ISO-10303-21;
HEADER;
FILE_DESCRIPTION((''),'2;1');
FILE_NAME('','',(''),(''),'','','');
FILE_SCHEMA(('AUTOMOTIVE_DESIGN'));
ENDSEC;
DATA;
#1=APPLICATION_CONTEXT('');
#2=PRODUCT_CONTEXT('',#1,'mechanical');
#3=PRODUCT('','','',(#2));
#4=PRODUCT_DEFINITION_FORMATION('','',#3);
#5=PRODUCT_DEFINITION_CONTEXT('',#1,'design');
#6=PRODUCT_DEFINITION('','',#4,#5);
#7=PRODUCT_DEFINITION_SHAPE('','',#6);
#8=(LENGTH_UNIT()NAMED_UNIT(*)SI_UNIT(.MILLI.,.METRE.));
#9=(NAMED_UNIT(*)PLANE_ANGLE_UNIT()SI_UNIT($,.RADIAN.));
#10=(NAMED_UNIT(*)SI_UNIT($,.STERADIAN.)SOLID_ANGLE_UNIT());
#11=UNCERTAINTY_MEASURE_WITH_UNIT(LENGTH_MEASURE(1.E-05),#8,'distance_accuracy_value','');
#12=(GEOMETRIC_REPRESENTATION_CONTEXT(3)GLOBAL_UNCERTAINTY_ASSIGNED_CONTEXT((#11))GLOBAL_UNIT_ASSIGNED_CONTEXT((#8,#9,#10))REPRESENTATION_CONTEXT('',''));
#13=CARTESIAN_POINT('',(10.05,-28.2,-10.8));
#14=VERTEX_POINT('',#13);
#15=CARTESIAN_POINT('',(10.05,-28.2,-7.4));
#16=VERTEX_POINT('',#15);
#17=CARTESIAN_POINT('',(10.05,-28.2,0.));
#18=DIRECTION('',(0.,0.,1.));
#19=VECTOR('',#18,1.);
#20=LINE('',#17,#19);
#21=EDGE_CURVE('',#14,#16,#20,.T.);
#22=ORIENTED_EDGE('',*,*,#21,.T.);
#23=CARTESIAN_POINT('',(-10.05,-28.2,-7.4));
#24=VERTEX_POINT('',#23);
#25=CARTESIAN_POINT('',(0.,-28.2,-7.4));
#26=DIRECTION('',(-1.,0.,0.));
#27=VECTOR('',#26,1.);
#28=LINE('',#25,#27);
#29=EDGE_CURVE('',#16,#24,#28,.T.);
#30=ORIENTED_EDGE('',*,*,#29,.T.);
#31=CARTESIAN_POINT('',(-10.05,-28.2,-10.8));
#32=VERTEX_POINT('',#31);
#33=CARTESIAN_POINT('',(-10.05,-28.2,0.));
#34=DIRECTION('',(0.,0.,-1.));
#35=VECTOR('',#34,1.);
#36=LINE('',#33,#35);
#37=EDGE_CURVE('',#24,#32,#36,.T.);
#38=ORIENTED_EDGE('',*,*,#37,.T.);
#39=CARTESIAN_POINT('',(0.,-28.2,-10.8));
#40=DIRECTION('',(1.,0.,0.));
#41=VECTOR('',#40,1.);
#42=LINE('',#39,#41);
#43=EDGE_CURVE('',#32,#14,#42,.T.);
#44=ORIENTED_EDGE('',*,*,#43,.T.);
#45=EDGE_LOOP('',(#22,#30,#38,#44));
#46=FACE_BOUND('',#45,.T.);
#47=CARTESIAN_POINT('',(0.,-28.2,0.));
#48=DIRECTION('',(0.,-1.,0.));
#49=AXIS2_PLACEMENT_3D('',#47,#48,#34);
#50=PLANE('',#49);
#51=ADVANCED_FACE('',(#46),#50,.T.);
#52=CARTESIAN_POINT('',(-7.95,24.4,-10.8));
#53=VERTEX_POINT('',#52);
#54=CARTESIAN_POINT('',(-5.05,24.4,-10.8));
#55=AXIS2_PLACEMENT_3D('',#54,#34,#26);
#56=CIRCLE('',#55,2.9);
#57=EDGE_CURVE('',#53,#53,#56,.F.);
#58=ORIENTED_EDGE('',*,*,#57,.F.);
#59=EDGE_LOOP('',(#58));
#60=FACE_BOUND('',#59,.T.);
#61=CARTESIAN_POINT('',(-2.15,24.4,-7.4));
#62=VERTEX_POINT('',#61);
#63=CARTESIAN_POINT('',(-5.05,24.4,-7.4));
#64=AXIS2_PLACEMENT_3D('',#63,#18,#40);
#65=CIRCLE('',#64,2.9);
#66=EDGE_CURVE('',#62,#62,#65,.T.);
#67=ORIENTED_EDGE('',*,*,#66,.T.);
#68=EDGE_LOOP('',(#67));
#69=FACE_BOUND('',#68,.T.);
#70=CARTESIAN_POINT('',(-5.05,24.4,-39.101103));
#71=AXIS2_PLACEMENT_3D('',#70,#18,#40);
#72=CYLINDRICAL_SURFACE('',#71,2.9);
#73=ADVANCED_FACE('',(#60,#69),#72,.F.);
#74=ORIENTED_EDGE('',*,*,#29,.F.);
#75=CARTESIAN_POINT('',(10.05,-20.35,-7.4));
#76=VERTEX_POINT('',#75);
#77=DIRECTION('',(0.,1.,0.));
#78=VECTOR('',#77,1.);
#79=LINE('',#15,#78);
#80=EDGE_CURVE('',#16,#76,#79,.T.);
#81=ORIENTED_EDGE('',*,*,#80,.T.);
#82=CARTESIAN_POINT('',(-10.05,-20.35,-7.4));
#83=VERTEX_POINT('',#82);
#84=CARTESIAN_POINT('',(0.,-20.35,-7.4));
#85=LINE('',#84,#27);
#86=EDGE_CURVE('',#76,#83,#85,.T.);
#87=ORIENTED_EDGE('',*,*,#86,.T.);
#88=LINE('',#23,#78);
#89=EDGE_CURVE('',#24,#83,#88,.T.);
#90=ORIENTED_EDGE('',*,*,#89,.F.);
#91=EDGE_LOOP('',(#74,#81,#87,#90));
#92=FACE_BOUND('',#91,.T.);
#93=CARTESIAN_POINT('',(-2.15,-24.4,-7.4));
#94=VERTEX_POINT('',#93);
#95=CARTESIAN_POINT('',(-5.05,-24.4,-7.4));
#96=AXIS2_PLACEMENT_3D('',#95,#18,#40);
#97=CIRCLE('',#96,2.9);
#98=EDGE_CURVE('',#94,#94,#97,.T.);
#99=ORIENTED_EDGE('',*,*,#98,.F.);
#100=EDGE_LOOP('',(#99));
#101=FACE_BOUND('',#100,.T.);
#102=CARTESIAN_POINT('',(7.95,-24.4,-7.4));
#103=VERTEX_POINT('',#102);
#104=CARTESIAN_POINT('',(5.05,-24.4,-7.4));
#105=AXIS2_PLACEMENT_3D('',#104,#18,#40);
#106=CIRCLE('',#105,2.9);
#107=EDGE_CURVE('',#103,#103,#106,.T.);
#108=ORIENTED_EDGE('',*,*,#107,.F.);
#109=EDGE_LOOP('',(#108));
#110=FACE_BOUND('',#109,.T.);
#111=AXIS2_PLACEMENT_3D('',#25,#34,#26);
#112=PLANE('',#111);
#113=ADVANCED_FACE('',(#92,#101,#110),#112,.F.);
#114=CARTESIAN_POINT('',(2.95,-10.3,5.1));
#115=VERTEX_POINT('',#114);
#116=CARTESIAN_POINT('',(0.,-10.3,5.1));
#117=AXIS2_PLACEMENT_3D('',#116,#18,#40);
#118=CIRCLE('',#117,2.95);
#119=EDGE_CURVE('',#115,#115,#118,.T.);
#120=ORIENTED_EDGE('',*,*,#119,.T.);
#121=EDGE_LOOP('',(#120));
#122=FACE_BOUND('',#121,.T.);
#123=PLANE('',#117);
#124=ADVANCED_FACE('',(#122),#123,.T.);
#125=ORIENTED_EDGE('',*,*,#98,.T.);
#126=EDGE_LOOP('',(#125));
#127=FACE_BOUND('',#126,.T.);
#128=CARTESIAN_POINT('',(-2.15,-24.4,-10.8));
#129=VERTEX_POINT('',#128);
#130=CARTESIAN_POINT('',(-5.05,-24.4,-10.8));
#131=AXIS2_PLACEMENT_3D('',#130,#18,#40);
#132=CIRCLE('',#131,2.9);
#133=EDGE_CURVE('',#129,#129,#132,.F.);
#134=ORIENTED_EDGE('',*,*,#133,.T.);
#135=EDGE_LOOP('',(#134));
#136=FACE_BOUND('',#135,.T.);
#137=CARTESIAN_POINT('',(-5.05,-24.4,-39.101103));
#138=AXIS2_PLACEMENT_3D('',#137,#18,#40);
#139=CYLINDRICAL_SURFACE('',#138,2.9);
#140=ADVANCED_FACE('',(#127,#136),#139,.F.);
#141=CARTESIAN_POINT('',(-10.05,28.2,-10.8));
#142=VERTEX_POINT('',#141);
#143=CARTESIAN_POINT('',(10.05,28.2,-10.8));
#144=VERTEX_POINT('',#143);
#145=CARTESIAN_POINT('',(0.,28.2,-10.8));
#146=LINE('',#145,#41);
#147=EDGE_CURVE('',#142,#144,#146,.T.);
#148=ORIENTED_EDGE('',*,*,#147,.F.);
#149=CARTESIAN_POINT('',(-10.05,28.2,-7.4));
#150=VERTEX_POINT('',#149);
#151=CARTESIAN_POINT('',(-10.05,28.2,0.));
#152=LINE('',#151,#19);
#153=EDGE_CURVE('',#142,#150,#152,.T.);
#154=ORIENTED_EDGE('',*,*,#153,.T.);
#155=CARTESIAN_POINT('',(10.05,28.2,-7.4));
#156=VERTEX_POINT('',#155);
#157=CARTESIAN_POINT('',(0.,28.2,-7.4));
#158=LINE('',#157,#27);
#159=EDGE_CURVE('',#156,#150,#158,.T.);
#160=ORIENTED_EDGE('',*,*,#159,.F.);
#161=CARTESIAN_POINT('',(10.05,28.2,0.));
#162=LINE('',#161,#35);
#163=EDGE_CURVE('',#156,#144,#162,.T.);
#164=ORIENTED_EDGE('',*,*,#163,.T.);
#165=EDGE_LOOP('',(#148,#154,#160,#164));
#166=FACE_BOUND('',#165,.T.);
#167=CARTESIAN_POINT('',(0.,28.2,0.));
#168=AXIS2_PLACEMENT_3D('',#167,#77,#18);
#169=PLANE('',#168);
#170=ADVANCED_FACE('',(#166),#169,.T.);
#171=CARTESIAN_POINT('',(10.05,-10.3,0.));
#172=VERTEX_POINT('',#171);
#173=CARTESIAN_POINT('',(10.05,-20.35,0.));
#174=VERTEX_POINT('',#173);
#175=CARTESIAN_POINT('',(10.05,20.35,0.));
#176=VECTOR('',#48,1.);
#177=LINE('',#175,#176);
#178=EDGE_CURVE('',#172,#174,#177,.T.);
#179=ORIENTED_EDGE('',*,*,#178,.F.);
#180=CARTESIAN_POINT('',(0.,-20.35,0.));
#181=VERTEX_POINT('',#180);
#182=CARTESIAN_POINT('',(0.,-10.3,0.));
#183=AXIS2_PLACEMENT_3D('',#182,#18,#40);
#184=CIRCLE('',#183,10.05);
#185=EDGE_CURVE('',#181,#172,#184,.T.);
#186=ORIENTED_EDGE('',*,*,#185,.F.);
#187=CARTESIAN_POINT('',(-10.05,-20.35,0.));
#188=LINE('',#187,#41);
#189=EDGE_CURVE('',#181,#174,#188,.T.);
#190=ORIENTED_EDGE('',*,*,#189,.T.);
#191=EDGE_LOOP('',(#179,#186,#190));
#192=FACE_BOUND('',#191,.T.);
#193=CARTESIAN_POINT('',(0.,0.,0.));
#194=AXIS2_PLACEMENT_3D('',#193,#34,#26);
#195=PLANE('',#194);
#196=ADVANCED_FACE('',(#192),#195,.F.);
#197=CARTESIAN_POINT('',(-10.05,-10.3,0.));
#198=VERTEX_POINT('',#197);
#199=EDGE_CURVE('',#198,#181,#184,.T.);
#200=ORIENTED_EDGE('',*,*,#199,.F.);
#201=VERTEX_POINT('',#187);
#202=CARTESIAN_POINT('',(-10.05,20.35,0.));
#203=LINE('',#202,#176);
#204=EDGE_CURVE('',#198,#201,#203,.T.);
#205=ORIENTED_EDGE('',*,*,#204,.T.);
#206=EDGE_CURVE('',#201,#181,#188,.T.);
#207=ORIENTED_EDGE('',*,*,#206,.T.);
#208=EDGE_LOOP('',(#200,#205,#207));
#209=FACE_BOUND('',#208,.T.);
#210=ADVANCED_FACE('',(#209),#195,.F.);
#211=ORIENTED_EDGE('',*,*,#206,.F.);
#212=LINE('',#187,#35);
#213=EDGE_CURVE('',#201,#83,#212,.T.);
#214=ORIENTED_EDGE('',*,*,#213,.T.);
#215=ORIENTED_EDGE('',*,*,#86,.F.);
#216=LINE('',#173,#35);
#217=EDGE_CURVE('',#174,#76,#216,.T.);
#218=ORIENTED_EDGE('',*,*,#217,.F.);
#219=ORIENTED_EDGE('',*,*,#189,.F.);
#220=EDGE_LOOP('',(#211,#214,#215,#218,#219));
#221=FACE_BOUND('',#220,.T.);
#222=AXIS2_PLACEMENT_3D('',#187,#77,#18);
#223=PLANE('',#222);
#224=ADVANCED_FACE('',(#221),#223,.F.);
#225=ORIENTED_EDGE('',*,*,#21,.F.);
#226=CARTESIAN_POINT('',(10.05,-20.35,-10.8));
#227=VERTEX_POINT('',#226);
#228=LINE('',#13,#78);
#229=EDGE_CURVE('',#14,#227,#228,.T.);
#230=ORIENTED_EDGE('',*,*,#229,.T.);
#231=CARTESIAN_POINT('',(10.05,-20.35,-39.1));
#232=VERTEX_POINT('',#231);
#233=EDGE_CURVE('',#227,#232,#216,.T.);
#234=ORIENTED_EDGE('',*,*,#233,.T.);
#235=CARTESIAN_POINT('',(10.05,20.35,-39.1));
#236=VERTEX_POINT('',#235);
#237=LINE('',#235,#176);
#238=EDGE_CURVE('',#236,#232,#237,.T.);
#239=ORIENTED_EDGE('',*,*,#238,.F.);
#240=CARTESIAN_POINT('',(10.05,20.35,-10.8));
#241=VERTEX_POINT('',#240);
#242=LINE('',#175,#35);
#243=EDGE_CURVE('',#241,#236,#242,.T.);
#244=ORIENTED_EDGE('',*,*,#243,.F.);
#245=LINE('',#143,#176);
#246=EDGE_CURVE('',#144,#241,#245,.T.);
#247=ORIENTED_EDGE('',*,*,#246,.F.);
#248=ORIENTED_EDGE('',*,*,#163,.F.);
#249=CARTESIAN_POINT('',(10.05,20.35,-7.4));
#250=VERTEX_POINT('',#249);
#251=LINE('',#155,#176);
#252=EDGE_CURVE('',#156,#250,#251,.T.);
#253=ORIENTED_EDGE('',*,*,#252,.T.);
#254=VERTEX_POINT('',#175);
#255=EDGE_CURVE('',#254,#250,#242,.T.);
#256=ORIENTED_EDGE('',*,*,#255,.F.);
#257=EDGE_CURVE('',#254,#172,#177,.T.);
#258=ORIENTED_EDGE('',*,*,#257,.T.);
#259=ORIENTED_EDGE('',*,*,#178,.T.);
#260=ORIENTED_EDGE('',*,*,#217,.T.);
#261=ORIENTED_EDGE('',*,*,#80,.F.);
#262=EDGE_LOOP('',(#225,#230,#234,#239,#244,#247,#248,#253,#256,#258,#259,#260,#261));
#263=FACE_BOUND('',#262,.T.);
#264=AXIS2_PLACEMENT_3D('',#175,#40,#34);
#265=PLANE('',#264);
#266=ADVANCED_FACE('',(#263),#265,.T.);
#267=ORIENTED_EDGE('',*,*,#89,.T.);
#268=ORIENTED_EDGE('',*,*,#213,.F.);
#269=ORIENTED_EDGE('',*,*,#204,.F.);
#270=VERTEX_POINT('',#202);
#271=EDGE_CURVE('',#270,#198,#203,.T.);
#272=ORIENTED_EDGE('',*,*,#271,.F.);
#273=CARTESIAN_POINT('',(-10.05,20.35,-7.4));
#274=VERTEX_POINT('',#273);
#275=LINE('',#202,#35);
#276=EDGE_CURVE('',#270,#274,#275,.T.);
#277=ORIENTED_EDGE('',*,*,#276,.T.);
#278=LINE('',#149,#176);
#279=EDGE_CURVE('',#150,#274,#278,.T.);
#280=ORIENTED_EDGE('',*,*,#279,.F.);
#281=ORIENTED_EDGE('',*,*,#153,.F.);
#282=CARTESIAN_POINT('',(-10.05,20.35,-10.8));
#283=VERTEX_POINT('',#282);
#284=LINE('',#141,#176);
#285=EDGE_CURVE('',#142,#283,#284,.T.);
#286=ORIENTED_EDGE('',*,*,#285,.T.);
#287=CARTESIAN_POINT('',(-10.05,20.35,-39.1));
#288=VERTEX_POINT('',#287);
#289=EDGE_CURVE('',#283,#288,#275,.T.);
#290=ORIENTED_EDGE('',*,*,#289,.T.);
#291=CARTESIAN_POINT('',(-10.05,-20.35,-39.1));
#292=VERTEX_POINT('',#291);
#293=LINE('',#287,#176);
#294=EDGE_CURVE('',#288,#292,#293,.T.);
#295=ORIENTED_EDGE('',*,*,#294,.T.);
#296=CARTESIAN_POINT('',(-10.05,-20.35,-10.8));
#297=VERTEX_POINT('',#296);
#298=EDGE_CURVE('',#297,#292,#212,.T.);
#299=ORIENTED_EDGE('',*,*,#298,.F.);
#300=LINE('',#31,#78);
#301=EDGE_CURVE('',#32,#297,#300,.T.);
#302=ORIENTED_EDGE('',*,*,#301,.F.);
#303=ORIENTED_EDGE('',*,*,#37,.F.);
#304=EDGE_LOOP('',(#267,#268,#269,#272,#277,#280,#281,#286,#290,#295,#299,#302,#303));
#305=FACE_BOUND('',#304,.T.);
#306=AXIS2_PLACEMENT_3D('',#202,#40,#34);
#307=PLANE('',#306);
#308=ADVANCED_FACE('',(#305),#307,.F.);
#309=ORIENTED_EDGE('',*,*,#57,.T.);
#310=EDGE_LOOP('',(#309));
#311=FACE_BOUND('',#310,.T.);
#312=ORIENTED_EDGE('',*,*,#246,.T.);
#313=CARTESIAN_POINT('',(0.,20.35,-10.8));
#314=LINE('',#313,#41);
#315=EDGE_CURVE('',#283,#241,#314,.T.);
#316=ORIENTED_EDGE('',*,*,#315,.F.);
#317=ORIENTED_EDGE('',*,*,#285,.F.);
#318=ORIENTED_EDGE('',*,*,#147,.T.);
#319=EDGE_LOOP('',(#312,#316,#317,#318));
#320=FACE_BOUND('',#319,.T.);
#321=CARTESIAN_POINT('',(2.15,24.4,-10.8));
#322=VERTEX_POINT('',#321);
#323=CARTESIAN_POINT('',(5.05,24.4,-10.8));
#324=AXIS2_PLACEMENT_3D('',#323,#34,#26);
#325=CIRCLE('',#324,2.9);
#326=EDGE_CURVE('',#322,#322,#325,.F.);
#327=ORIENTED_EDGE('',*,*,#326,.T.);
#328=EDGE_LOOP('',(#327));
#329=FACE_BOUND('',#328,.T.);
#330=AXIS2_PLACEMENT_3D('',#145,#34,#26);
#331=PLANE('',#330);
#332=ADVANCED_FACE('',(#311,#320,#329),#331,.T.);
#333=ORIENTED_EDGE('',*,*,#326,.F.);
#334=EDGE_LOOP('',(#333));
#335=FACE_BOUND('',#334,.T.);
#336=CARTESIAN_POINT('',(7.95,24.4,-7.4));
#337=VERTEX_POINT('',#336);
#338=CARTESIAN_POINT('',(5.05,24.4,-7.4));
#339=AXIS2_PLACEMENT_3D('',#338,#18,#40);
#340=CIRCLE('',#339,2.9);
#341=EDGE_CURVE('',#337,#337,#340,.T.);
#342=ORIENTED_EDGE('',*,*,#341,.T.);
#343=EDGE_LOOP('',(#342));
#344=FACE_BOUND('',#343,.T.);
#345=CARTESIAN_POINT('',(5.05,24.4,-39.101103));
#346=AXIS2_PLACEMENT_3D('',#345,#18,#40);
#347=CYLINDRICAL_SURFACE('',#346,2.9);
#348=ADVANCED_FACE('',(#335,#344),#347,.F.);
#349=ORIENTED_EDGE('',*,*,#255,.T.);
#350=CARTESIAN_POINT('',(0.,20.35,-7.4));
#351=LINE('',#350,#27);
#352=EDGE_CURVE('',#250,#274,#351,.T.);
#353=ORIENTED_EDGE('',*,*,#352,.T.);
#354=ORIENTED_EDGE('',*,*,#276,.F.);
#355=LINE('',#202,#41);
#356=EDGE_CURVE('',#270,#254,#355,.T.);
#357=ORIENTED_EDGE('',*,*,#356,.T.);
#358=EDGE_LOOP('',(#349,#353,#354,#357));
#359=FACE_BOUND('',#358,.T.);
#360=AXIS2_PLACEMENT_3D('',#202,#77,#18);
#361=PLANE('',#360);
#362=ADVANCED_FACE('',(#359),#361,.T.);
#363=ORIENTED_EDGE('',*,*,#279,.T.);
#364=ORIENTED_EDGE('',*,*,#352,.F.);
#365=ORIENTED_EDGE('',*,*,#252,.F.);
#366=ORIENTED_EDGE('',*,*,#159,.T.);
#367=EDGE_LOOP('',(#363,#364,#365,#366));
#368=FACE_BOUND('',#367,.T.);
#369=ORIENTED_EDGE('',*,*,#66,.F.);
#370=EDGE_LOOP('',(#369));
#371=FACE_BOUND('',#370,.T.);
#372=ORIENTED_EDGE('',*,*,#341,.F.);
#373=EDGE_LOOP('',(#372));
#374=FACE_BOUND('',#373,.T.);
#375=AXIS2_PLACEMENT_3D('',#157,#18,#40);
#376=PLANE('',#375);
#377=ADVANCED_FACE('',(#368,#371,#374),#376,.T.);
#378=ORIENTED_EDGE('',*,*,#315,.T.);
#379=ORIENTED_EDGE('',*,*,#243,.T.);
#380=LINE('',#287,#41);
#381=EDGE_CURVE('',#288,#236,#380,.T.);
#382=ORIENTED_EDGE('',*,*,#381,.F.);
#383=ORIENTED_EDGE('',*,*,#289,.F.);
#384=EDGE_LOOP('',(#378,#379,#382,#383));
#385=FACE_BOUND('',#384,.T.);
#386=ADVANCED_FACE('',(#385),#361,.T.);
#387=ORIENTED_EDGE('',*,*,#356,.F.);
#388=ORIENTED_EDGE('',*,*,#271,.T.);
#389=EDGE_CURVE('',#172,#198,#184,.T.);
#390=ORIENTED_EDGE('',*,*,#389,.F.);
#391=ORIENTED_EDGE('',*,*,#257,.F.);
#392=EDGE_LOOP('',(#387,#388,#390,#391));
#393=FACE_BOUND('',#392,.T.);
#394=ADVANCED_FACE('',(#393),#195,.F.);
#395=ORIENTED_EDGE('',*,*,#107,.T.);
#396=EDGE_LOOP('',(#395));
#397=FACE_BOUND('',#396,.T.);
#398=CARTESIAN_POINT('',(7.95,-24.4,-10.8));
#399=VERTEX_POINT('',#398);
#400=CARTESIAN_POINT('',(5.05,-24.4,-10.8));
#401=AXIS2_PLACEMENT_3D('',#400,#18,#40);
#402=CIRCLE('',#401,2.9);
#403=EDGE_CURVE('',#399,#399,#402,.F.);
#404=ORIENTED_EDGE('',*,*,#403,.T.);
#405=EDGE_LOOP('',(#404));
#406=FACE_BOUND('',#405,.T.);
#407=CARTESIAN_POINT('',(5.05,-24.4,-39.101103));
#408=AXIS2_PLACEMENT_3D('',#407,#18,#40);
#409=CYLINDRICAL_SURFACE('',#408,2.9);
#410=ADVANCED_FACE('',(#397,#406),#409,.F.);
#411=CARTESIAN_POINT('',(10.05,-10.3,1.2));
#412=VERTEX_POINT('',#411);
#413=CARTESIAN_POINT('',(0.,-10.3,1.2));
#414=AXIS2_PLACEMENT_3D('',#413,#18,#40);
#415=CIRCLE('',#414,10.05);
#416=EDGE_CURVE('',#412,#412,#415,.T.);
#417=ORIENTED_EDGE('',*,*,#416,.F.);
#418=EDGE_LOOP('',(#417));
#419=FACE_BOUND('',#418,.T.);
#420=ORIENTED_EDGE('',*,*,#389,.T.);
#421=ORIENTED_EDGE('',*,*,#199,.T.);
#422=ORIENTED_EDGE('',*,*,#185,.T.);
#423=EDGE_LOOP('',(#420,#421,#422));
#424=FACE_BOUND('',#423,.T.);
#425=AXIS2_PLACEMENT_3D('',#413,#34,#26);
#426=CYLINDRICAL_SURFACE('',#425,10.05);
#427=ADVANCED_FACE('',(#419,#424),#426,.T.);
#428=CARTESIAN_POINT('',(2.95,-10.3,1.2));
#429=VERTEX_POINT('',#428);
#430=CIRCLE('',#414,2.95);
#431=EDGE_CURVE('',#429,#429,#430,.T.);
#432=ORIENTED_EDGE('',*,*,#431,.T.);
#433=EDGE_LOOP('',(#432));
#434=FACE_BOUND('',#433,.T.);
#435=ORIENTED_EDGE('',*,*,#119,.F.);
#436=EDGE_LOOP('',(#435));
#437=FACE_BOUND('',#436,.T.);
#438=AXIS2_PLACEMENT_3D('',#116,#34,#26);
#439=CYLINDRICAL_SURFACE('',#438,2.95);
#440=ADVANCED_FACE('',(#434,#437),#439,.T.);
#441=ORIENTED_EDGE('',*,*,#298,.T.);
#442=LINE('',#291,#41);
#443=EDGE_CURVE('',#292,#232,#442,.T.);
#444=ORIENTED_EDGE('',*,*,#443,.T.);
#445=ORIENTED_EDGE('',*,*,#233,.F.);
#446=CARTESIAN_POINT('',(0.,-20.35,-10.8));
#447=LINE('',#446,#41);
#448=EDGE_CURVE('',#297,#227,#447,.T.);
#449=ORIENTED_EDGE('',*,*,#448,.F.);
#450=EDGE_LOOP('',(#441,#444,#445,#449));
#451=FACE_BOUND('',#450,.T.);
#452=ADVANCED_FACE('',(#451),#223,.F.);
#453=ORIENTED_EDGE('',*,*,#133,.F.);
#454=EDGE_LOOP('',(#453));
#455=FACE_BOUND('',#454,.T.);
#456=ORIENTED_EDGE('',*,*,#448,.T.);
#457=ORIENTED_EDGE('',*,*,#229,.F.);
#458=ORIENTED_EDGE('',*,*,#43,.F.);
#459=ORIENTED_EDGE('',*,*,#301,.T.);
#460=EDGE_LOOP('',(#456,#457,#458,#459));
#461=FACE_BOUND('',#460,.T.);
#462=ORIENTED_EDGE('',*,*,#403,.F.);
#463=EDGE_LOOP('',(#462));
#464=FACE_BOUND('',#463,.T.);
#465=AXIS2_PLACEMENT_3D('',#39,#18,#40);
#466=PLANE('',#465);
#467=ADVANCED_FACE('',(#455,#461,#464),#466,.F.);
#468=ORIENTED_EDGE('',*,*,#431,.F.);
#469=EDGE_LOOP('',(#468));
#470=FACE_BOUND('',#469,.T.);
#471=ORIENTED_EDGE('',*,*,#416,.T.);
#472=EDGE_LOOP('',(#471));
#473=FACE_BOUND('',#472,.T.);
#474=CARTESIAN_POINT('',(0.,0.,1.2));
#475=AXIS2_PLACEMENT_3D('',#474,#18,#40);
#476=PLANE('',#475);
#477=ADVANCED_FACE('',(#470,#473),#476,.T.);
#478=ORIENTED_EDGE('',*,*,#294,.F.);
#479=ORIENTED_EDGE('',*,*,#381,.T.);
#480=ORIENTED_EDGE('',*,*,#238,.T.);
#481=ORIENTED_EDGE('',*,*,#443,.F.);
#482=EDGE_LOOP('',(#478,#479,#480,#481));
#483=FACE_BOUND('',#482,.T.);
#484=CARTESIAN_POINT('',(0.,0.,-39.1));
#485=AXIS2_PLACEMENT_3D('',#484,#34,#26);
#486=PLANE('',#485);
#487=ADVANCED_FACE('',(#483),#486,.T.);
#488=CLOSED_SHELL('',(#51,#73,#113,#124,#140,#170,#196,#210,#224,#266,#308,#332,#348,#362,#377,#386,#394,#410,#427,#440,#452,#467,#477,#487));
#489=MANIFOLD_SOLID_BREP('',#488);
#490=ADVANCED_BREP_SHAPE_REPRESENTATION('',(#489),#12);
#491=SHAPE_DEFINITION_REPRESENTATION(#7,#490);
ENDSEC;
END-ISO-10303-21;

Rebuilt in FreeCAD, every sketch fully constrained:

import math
import FreeCAD as App
import Part
import Sketcher

V = App.Vector


def add_polygon(sketch, points):
    """Adds a closed chain of lines whose ends are joined by coincident constraints."""
    first, n = sketch.GeometryCount, len(points)
    for a, b in zip(points, points[1:] + points[:1]):
        sketch.addGeometry(Part.LineSegment(App.Vector(*a, 0), App.Vector(*b, 0)), False)
    for i in range(n):
        sketch.addConstraint(Sketcher.Constraint("Coincident", first + i, 2, first + (i + 1) % n, 1))

doc = App.newDocument("Part")
body = doc.addObject("PartDesign::Body", "Body")

# Sketch on XY plane
sketch1 = doc.addObject("Sketcher::SketchObject", "Sketch")
body.addObject(sketch1)
sketch1.AttachmentSupport = (doc.XY_Plane, [""])
sketch1.MapMode = "FlatFace"
add_polygon(sketch1, [(10, 20), (-10, 20), (-10, -20), (10, -20)])  # lines 0-3
sketch1.addConstraint([
    Sketcher.Constraint("Horizontal", 0),
    Sketcher.Constraint("Vertical", 1),
    Sketcher.Constraint("Horizontal", 2),
    Sketcher.Constraint("Vertical", 3),
    Sketcher.Constraint("Symmetric", 0, 2, 2, 2, -1, 1),
    Sketcher.Constraint("DistanceX", 0, 2, 0, 1, 20.1),
    Sketcher.Constraint("DistanceY", 1, 2, 1, 1, 40.7),
])
pad1 = doc.addObject("PartDesign::Pad", "Pad")
body.addObject(pad1)
pad1.Profile = sketch1
pad1.Length = 39.1
pad1.Reversed = True

# Sketch on XY plane
sketch2 = doc.addObject("Sketcher::SketchObject", "Sketch001")
body.addObject(sketch2)
sketch2.AttachmentSupport = (doc.XY_Plane, [""])
sketch2.MapMode = "FlatFace"
sketch2.addGeometry(Part.Circle(V(0, -10, 0), V(0, 0, 1), 10), False)
sketch2.addConstraint([
    Sketcher.Constraint("PointOnObject", 0, 3, -2),
    Sketcher.Constraint("Diameter", 0, 20.1),
    Sketcher.Constraint("DistanceY", 0, 3, -1, 1, 10.3),
])
pad2 = doc.addObject("PartDesign::Pad", "Pad001")
body.addObject(pad2)
pad2.Profile = sketch2
pad2.Length = 1.2

# Sketch on XY plane
sketch3 = doc.addObject("Sketcher::SketchObject", "Sketch002")
body.addObject(sketch3)
sketch3.AttachmentSupport = (doc.XY_Plane, [""])
sketch3.MapMode = "FlatFace"
sketch3.AttachmentOffset = App.Placement(V(0, 0, 1.2), App.Rotation())
sketch3.addGeometry(Part.Circle(V(0, -10.3, 0), V(0, 0, 1), 3), False)
sketch3.addConstraint([
    Sketcher.Constraint("PointOnObject", 0, 3, -2),
    Sketcher.Constraint("Diameter", 0, 5.9),
    Sketcher.Constraint("DistanceY", 0, 3, -1, 1, 10.3),
])
pad3 = doc.addObject("PartDesign::Pad", "Pad002")
body.addObject(pad3)
pad3.Profile = sketch3
pad3.Length = 3.9

# Sketch on XZ plane
sketch4 = doc.addObject("Sketcher::SketchObject", "Sketch003")
body.addObject(sketch4)
sketch4.AttachmentSupport = (doc.XZ_Plane, [""])
sketch4.MapMode = "FlatFace"
sketch4.AttachmentOffset = App.Placement(V(0, 0, 20.35), App.Rotation())
add_polygon(sketch4, [(-10.1, -7.4), (-10.1, -10.8), (10.1, -10.8), (10.1, -7.4)])  # lines 0-3
sketch4.addConstraint([
    Sketcher.Constraint("Vertical", 0),
    Sketcher.Constraint("Horizontal", 1),
    Sketcher.Constraint("Vertical", 2),
    Sketcher.Constraint("Horizontal", 3),
    Sketcher.Constraint("DistanceX", 1, 1, 1, 2, 20.1),
    Sketcher.Constraint("DistanceY", 0, 2, 0, 1, 3.4),
    Sketcher.Constraint("DistanceY", 0, 2, -1, 1, 10.8),
    Sketcher.Constraint("DistanceX", 0, 2, -1, 1, 10.05),
])
pad4 = doc.addObject("PartDesign::Pad", "Pad003")
body.addObject(pad4)
pad4.Profile = sketch4
pad4.Length = 7.85

# Sketch on XZ plane
sketch5 = doc.addObject("Sketcher::SketchObject", "Sketch004")
body.addObject(sketch5)
sketch5.AttachmentSupport = (doc.XZ_Plane, [""])
sketch5.MapMode = "FlatFace"
sketch5.AttachmentOffset = App.Placement(V(0, 0, -20.35), App.Rotation())
add_polygon(sketch5, [(-10.1, -10.8), (-10.1, -7.4), (10.1, -7.4), (10.1, -10.8)])  # lines 0-3
sketch5.addConstraint([
    Sketcher.Constraint("Vertical", 0),
    Sketcher.Constraint("Horizontal", 1),
    Sketcher.Constraint("Vertical", 2),
    Sketcher.Constraint("Horizontal", 3),
    Sketcher.Constraint("DistanceX", 1, 1, 1, 2, 20.1),
    Sketcher.Constraint("DistanceY", 0, 1, 0, 2, 3.4),
    Sketcher.Constraint("DistanceY", 0, 2, -1, 1, 7.4),
    Sketcher.Constraint("DistanceX", 0, 2, -1, 1, 10.05),
])
pad5 = doc.addObject("PartDesign::Pad", "Pad004")
body.addObject(pad5)
pad5.Profile = sketch5
pad5.Length = 7.85
pad5.Reversed = True

# Sketch on XY plane
sketch6 = doc.addObject("Sketcher::SketchObject", "Sketch005")
body.addObject(sketch6)
sketch6.AttachmentSupport = (doc.XY_Plane, [""])
sketch6.MapMode = "FlatFace"
sketch6.AttachmentOffset = App.Placement(V(0, 0, -7.4), App.Rotation())
sketch6.addGeometry([
    Part.ArcOfCircle(Part.Circle(V(-5, -24.4, 0), V(0, 0, 1), 2.9), math.radians(-180), math.radians(-90)),
    Part.LineSegment(V(-5, -27.3, 0), V(-5, -24.4, 0)),
    Part.LineSegment(V(-5, -24.4, 0), V(-8, -24.4, 0)),
], False)
sketch6.addConstraint([
    Sketcher.Constraint("Coincident", 0, 2, 1, 1),
    Sketcher.Constraint("Coincident", 1, 2, 2, 1),
    Sketcher.Constraint("Coincident", 2, 2, 0, 1),
    Sketcher.Constraint("Vertical", 1),
    Sketcher.Constraint("Horizontal", 2),
    Sketcher.Constraint("Coincident", 1, 2, 0, 3),
    Sketcher.Constraint("Radius", 0, 2.9),
    Sketcher.Constraint("DistanceY", 0, 3, -1, 1, 24.4),
    Sketcher.Constraint("DistanceX", 0, 3, -1, 1, 5.05),
])
pocket1 = doc.addObject("PartDesign::Pocket", "Pocket")
body.addObject(pocket1)
pocket1.Profile = sketch6
pocket1.Type = "UpToFirst"

# Sketch on XY plane
sketch7 = doc.addObject("Sketcher::SketchObject", "Sketch006")
body.addObject(sketch7)
sketch7.AttachmentSupport = (doc.XY_Plane, [""])
sketch7.MapMode = "FlatFace"
sketch7.AttachmentOffset = App.Placement(V(0, 0, -7.4), App.Rotation())
sketch7.addGeometry([
    Part.LineSegment(V(-5, -24.4, 0), V(-5, -27.3, 0)),
    Part.ArcOfCircle(Part.Circle(V(-5.1, -24.4, 0), V(0, 0, 1), 2.9), math.radians(-90), math.radians(0)),
    Part.ArcOfCircle(Part.Circle(V(-5, -24.4, 0), V(0, 0, 1), 2.9), math.radians(0), math.radians(180)),
    Part.LineSegment(V(-8, -24.4, 0), V(-5, -24.4, 0)),
], False)
sketch7.addConstraint([
    Sketcher.Constraint("Coincident", 0, 2, 1, 1),
    Sketcher.Constraint("Tangent", 1, 2, 2, 1),
    Sketcher.Constraint("Coincident", 2, 2, 3, 1),
    Sketcher.Constraint("Coincident", 3, 2, 0, 1),
    Sketcher.Constraint("Vertical", 0),
    Sketcher.Constraint("Horizontal", 3),
    Sketcher.Constraint("Coincident", 3, 2, 1, 3),
    Sketcher.Constraint("Equal", 1, 2),
    Sketcher.Constraint("Horizontal", 2, 3, 1, 2),
    Sketcher.Constraint("Radius", 1, 2.9),
    Sketcher.Constraint("DistanceY", 1, 3, -1, 1, 24.4),
    Sketcher.Constraint("DistanceX", 1, 3, -1, 1, 5.05),
])
pocket2 = doc.addObject("PartDesign::Pocket", "Pocket001")
body.addObject(pocket2)
pocket2.Profile = sketch7
pocket2.Type = "UpToFirst"

# Sketch on XY plane
sketch8 = doc.addObject("Sketcher::SketchObject", "Sketch007")
body.addObject(sketch8)
sketch8.AttachmentSupport = (doc.XY_Plane, [""])
sketch8.MapMode = "FlatFace"
sketch8.AttachmentOffset = App.Placement(V(0, 0, -7.4), App.Rotation())
sketch8.addGeometry([
    Part.ArcOfCircle(Part.Circle(V(-5, -24.4, 0), V(0, 0, 1), 2.9), math.radians(-180), math.radians(-90)),
    Part.LineSegment(V(-5, -27.3, 0), V(-5, -24.4, 0)),
    Part.LineSegment(V(-5, -24.4, 0), V(-8, -24.4, 0)),
], False)
sketch8.addConstraint([
    Sketcher.Constraint("Coincident", 0, 2, 1, 1),
    Sketcher.Constraint("Coincident", 1, 2, 2, 1),
    Sketcher.Constraint("Coincident", 2, 2, 0, 1),
    Sketcher.Constraint("Vertical", 1),
    Sketcher.Constraint("Horizontal", 2),
    Sketcher.Constraint("Coincident", 1, 2, 0, 3),
    Sketcher.Constraint("Radius", 0, 2.9),
    Sketcher.Constraint("DistanceY", 0, 3, -1, 1, 24.4),
    Sketcher.Constraint("DistanceX", 0, 3, -1, 1, 5.05),
])
pocket3 = doc.addObject("PartDesign::Pocket", "Pocket002")
body.addObject(pocket3)
pocket3.Profile = sketch8
pocket3.Length = 3.4

# Sketch on XY plane
sketch9 = doc.addObject("Sketcher::SketchObject", "Sketch008")
body.addObject(sketch9)
sketch9.AttachmentSupport = (doc.XY_Plane, [""])
sketch9.MapMode = "FlatFace"
sketch9.AttachmentOffset = App.Placement(V(0, 0, -7.4), App.Rotation())
sketch9.addGeometry([
    Part.LineSegment(V(-5, -24.4, 0), V(-5, -27.3, 0)),
    Part.ArcOfCircle(Part.Circle(V(-5.1, -24.4, 0), V(0, 0, 1), 2.9), math.radians(-90), math.radians(0)),
    Part.ArcOfCircle(Part.Circle(V(-5, -24.4, 0), V(0, 0, 1), 2.9), math.radians(0), math.radians(180)),
    Part.LineSegment(V(-8, -24.4, 0), V(-5, -24.4, 0)),
], False)
sketch9.addConstraint([
    Sketcher.Constraint("Coincident", 0, 2, 1, 1),
    Sketcher.Constraint("Tangent", 1, 2, 2, 1),
    Sketcher.Constraint("Coincident", 2, 2, 3, 1),
    Sketcher.Constraint("Coincident", 3, 2, 0, 1),
    Sketcher.Constraint("Vertical", 0),
    Sketcher.Constraint("Horizontal", 3),
    Sketcher.Constraint("Coincident", 3, 2, 1, 3),
    Sketcher.Constraint("Equal", 1, 2),
    Sketcher.Constraint("Horizontal", 2, 3, 1, 2),
    Sketcher.Constraint("Radius", 1, 2.9),
    Sketcher.Constraint("DistanceY", 1, 3, -1, 1, 24.4),
    Sketcher.Constraint("DistanceX", 1, 3, -1, 1, 5.05),
])
pocket4 = doc.addObject("PartDesign::Pocket", "Pocket003")
body.addObject(pocket4)
pocket4.Profile = sketch9
pocket4.Length = 3.4

# Sketch on XY plane
sketch10 = doc.addObject("Sketcher::SketchObject", "Sketch009")
body.addObject(sketch10)
sketch10.AttachmentSupport = (doc.XY_Plane, [""])
sketch10.MapMode = "FlatFace"
sketch10.AttachmentOffset = App.Placement(V(0, 0, -7.4), App.Rotation())
sketch10.addGeometry([
    Part.ArcOfCircle(Part.Circle(V(5, -24.4, 0), V(0, 0, 1), 2.9), math.radians(0), math.radians(270)),
    Part.LineSegment(V(5, -27.3, 0), V(5, -24.4, 0)),
    Part.LineSegment(V(5, -24.4, 0), V(8, -24.4, 0)),
], False)
sketch10.addConstraint([
    Sketcher.Constraint("Coincident", 0, 2, 1, 1),
    Sketcher.Constraint("Coincident", 1, 2, 2, 1),
    Sketcher.Constraint("Coincident", 2, 2, 0, 1),
    Sketcher.Constraint("Vertical", 1),
    Sketcher.Constraint("Horizontal", 2),
    Sketcher.Constraint("Coincident", 1, 2, 0, 3),
    Sketcher.Constraint("Radius", 0, 2.9),
    Sketcher.Constraint("DistanceY", 0, 3, -1, 1, 24.4),
    Sketcher.Constraint("DistanceX", -1, 1, 0, 3, 5.05),
])
pocket5 = doc.addObject("PartDesign::Pocket", "Pocket004")
body.addObject(pocket5)
pocket5.Profile = sketch10
pocket5.Type = "UpToFirst"

# Sketch on XY plane
sketch11 = doc.addObject("Sketcher::SketchObject", "Sketch010")
body.addObject(sketch11)
sketch11.AttachmentSupport = (doc.XY_Plane, [""])
sketch11.MapMode = "FlatFace"
sketch11.AttachmentOffset = App.Placement(V(0, 0, -7.4), App.Rotation())
sketch11.addGeometry([
    Part.LineSegment(V(5, -24.4, 0), V(5, -27.3, 0)),
    Part.ArcOfCircle(Part.Circle(V(5, -24.4, 0), V(0, 0, 1), 2.9), math.radians(-90), math.radians(0)),
    Part.LineSegment(V(8, -24.4, 0), V(5, -24.4, 0)),
], False)
sketch11.addConstraint([
    Sketcher.Constraint("Coincident", 0, 2, 1, 1),
    Sketcher.Constraint("Coincident", 1, 2, 2, 1),
    Sketcher.Constraint("Coincident", 2, 2, 0, 1),
    Sketcher.Constraint("Vertical", 0),
    Sketcher.Constraint("Horizontal", 2),
    Sketcher.Constraint("Coincident", 2, 2, 1, 3),
    Sketcher.Constraint("Radius", 1, 2.9),
    Sketcher.Constraint("DistanceY", 1, 3, -1, 1, 24.4),
    Sketcher.Constraint("DistanceX", -1, 1, 1, 3, 5.05),
])
pocket6 = doc.addObject("PartDesign::Pocket", "Pocket005")
body.addObject(pocket6)
pocket6.Profile = sketch11
pocket6.Type = "UpToFirst"

# Sketch on XY plane
sketch12 = doc.addObject("Sketcher::SketchObject", "Sketch011")
body.addObject(sketch12)
sketch12.AttachmentSupport = (doc.XY_Plane, [""])
sketch12.MapMode = "FlatFace"
sketch12.AttachmentOffset = App.Placement(V(0, 0, -7.4), App.Rotation())
sketch12.addGeometry([
    Part.ArcOfCircle(Part.Circle(V(5, -24.4, 0), V(0, 0, 1), 2.9), math.radians(0), math.radians(270)),
    Part.LineSegment(V(5, -27.3, 0), V(5, -24.4, 0)),
    Part.LineSegment(V(5, -24.4, 0), V(8, -24.4, 0)),
], False)
sketch12.addConstraint([
    Sketcher.Constraint("Coincident", 0, 2, 1, 1),
    Sketcher.Constraint("Coincident", 1, 2, 2, 1),
    Sketcher.Constraint("Coincident", 2, 2, 0, 1),
    Sketcher.Constraint("Vertical", 1),
    Sketcher.Constraint("Horizontal", 2),
    Sketcher.Constraint("Coincident", 1, 2, 0, 3),
    Sketcher.Constraint("Radius", 0, 2.9),
    Sketcher.Constraint("DistanceY", 0, 3, -1, 1, 24.4),
    Sketcher.Constraint("DistanceX", -1, 1, 0, 3, 5.05),
])
pocket7 = doc.addObject("PartDesign::Pocket", "Pocket006")
body.addObject(pocket7)
pocket7.Profile = sketch12
pocket7.Length = 3.4

# Sketch on XY plane
sketch13 = doc.addObject("Sketcher::SketchObject", "Sketch012")
body.addObject(sketch13)
sketch13.AttachmentSupport = (doc.XY_Plane, [""])
sketch13.MapMode = "FlatFace"
sketch13.AttachmentOffset = App.Placement(V(0, 0, -7.4), App.Rotation())
sketch13.addGeometry([
    Part.LineSegment(V(5, -24.4, 0), V(5, -27.3, 0)),
    Part.ArcOfCircle(Part.Circle(V(5, -24.4, 0), V(0, 0, 1), 2.9), math.radians(-90), math.radians(0)),
    Part.LineSegment(V(8, -24.4, 0), V(5, -24.4, 0)),
], False)
sketch13.addConstraint([
    Sketcher.Constraint("Coincident", 0, 2, 1, 1),
    Sketcher.Constraint("Coincident", 1, 2, 2, 1),
    Sketcher.Constraint("Coincident", 2, 2, 0, 1),
    Sketcher.Constraint("Vertical", 0),
    Sketcher.Constraint("Horizontal", 2),
    Sketcher.Constraint("Coincident", 2, 2, 1, 3),
    Sketcher.Constraint("Radius", 1, 2.9),
    Sketcher.Constraint("DistanceY", 1, 3, -1, 1, 24.4),
    Sketcher.Constraint("DistanceX", -1, 1, 1, 3, 5.05),
])
pocket8 = doc.addObject("PartDesign::Pocket", "Pocket007")
body.addObject(pocket8)
pocket8.Profile = sketch13
pocket8.Length = 3.4

# Sketch on XY plane
sketch14 = doc.addObject("Sketcher::SketchObject", "Sketch013")
body.addObject(sketch14)
sketch14.AttachmentSupport = (doc.XY_Plane, [""])
sketch14.MapMode = "FlatFace"
sketch14.AttachmentOffset = App.Placement(V(0, 0, -7.4), App.Rotation())
sketch14.addGeometry([
    Part.ArcOfCircle(Part.Circle(V(-5.1, 24.4, 0), V(0, 0, 1), 2.9), math.radians(0), math.radians(90)),
    Part.LineSegment(V(-5, 27.3, 0), V(-5, 24.4, 0)),
    Part.LineSegment(V(-5, 24.4, 0), V(-8, 24.4, 0)),
    Part.ArcOfCircle(Part.Circle(V(-5, 24.4, 0), V(0, 0, 1), 2.9), math.radians(180), math.radians(360)),
], False)
sketch14.addConstraint([
    Sketcher.Constraint("Coincident", 0, 2, 1, 1),
    Sketcher.Constraint("Coincident", 1, 2, 2, 1),
    Sketcher.Constraint("Coincident", 2, 2, 3, 1),
    Sketcher.Constraint("Tangent", 3, 2, 0, 1),
    Sketcher.Constraint("Vertical", 1),
    Sketcher.Constraint("Horizontal", 2),
    Sketcher.Constraint("Coincident", 1, 2, 0, 3),
    Sketcher.Constraint("Equal", 0, 3),
    Sketcher.Constraint("Horizontal", 2, 2, 3, 2),
    Sketcher.Constraint("Radius", 0, 2.9),
    Sketcher.Constraint("DistanceY", -1, 1, 0, 3, 24.4),
    Sketcher.Constraint("DistanceX", 0, 3, -1, 1, 5.05),
])
pocket9 = doc.addObject("PartDesign::Pocket", "Pocket008")
body.addObject(pocket9)
pocket9.Profile = sketch14
pocket9.Type = "UpToFirst"

# Sketch on XY plane
sketch15 = doc.addObject("Sketcher::SketchObject", "Sketch014")
body.addObject(sketch15)
sketch15.AttachmentSupport = (doc.XY_Plane, [""])
sketch15.MapMode = "FlatFace"
sketch15.AttachmentOffset = App.Placement(V(0, 0, -7.4), App.Rotation())
sketch15.addGeometry([
    Part.LineSegment(V(-5, 24.4, 0), V(-5, 27.3, 0)),
    Part.ArcOfCircle(Part.Circle(V(-5, 24.4, 0), V(0, 0, 1), 2.9), math.radians(90), math.radians(180)),
    Part.LineSegment(V(-8, 24.4, 0), V(-5, 24.4, 0)),
], False)
sketch15.addConstraint([
    Sketcher.Constraint("Coincident", 0, 2, 1, 1),
    Sketcher.Constraint("Coincident", 1, 2, 2, 1),
    Sketcher.Constraint("Coincident", 2, 2, 0, 1),
    Sketcher.Constraint("Vertical", 0),
    Sketcher.Constraint("Horizontal", 2),
    Sketcher.Constraint("Coincident", 2, 2, 1, 3),
    Sketcher.Constraint("Radius", 1, 2.9),
    Sketcher.Constraint("DistanceY", -1, 1, 1, 3, 24.4),
    Sketcher.Constraint("DistanceX", 1, 3, -1, 1, 5.05),
])
pocket10 = doc.addObject("PartDesign::Pocket", "Pocket009")
body.addObject(pocket10)
pocket10.Profile = sketch15
pocket10.Type = "UpToFirst"

# Sketch on XY plane
sketch16 = doc.addObject("Sketcher::SketchObject", "Sketch015")
body.addObject(sketch16)
sketch16.AttachmentSupport = (doc.XY_Plane, [""])
sketch16.MapMode = "FlatFace"
sketch16.AttachmentOffset = App.Placement(V(0, 0, -7.4), App.Rotation())
sketch16.addGeometry([
    Part.ArcOfCircle(Part.Circle(V(-5.1, 24.4, 0), V(0, 0, 1), 2.9), math.radians(0), math.radians(90)),
    Part.LineSegment(V(-5, 27.3, 0), V(-5, 24.4, 0)),
    Part.LineSegment(V(-5, 24.4, 0), V(-8, 24.4, 0)),
    Part.ArcOfCircle(Part.Circle(V(-5, 24.4, 0), V(0, 0, 1), 2.9), math.radians(180), math.radians(360)),
], False)
sketch16.addConstraint([
    Sketcher.Constraint("Coincident", 0, 2, 1, 1),
    Sketcher.Constraint("Coincident", 1, 2, 2, 1),
    Sketcher.Constraint("Coincident", 2, 2, 3, 1),
    Sketcher.Constraint("Tangent", 3, 2, 0, 1),
    Sketcher.Constraint("Vertical", 1),
    Sketcher.Constraint("Horizontal", 2),
    Sketcher.Constraint("Coincident", 1, 2, 0, 3),
    Sketcher.Constraint("Equal", 0, 3),
    Sketcher.Constraint("Horizontal", 2, 2, 3, 2),
    Sketcher.Constraint("Radius", 0, 2.9),
    Sketcher.Constraint("DistanceY", -1, 1, 0, 3, 24.4),
    Sketcher.Constraint("DistanceX", 0, 3, -1, 1, 5.05),
])
pocket11 = doc.addObject("PartDesign::Pocket", "Pocket010")
body.addObject(pocket11)
pocket11.Profile = sketch16
pocket11.Length = 3.4

# Sketch on XY plane
sketch17 = doc.addObject("Sketcher::SketchObject", "Sketch016")
body.addObject(sketch17)
sketch17.AttachmentSupport = (doc.XY_Plane, [""])
sketch17.MapMode = "FlatFace"
sketch17.AttachmentOffset = App.Placement(V(0, 0, -7.4), App.Rotation())
sketch17.addGeometry([
    Part.LineSegment(V(-5, 24.4, 0), V(-5, 27.3, 0)),
    Part.ArcOfCircle(Part.Circle(V(-5, 24.4, 0), V(0, 0, 1), 2.9), math.radians(90), math.radians(180)),
    Part.LineSegment(V(-8, 24.4, 0), V(-5, 24.4, 0)),
], False)
sketch17.addConstraint([
    Sketcher.Constraint("Coincident", 0, 2, 1, 1),
    Sketcher.Constraint("Coincident", 1, 2, 2, 1),
    Sketcher.Constraint("Coincident", 2, 2, 0, 1),
    Sketcher.Constraint("Vertical", 0),
    Sketcher.Constraint("Horizontal", 2),
    Sketcher.Constraint("Coincident", 2, 2, 1, 3),
    Sketcher.Constraint("Radius", 1, 2.9),
    Sketcher.Constraint("DistanceY", -1, 1, 1, 3, 24.4),
    Sketcher.Constraint("DistanceX", 1, 3, -1, 1, 5.05),
])
pocket12 = doc.addObject("PartDesign::Pocket", "Pocket011")
body.addObject(pocket12)
pocket12.Profile = sketch17
pocket12.Length = 3.4

# Sketch on XY plane
sketch18 = doc.addObject("Sketcher::SketchObject", "Sketch017")
body.addObject(sketch18)
sketch18.AttachmentSupport = (doc.XY_Plane, [""])
sketch18.MapMode = "FlatFace"
sketch18.AttachmentOffset = App.Placement(V(0, 0, -7.4), App.Rotation())
sketch18.addGeometry([
    Part.ArcOfCircle(Part.Circle(V(5, 24.4, 0), V(0, 0, 1), 2.9), math.radians(0), math.radians(90)),
    Part.LineSegment(V(5, 27.3, 0), V(5, 24.4, 0)),
    Part.LineSegment(V(5, 24.4, 0), V(8, 24.4, 0)),
], False)
sketch18.addConstraint([
    Sketcher.Constraint("Coincident", 0, 2, 1, 1),
    Sketcher.Constraint("Coincident", 1, 2, 2, 1),
    Sketcher.Constraint("Coincident", 2, 2, 0, 1),
    Sketcher.Constraint("Vertical", 1),
    Sketcher.Constraint("Horizontal", 2),
    Sketcher.Constraint("Coincident", 1, 2, 0, 3),
    Sketcher.Constraint("Radius", 0, 2.9),
    Sketcher.Constraint("DistanceY", -1, 1, 0, 3, 24.4),
    Sketcher.Constraint("DistanceX", -1, 1, 0, 3, 5.05),
])
pocket13 = doc.addObject("PartDesign::Pocket", "Pocket012")
body.addObject(pocket13)
pocket13.Profile = sketch18
pocket13.Type = "UpToFirst"

# Sketch on XY plane
sketch19 = doc.addObject("Sketcher::SketchObject", "Sketch018")
body.addObject(sketch19)
sketch19.AttachmentSupport = (doc.XY_Plane, [""])
sketch19.MapMode = "FlatFace"
sketch19.AttachmentOffset = App.Placement(V(0, 0, -7.4), App.Rotation())
sketch19.addGeometry([
    Part.LineSegment(V(5, 24.4, 0), V(5, 27.3, 0)),
    Part.ArcOfCircle(Part.Circle(V(5, 24.4, 0), V(0, 0, 1), 2.9), math.radians(90), math.radians(360)),
    Part.LineSegment(V(8, 24.4, 0), V(5, 24.4, 0)),
], False)
sketch19.addConstraint([
    Sketcher.Constraint("Coincident", 0, 2, 1, 1),
    Sketcher.Constraint("Coincident", 1, 2, 2, 1),
    Sketcher.Constraint("Coincident", 2, 2, 0, 1),
    Sketcher.Constraint("Vertical", 0),
    Sketcher.Constraint("Horizontal", 2),
    Sketcher.Constraint("Coincident", 2, 2, 1, 3),
    Sketcher.Constraint("Radius", 1, 2.9),
    Sketcher.Constraint("DistanceY", -1, 1, 1, 3, 24.4),
    Sketcher.Constraint("DistanceX", -1, 1, 1, 3, 5.05),
])
pocket14 = doc.addObject("PartDesign::Pocket", "Pocket013")
body.addObject(pocket14)
pocket14.Profile = sketch19
pocket14.Type = "UpToFirst"

# Sketch on XY plane
sketch20 = doc.addObject("Sketcher::SketchObject", "Sketch019")
body.addObject(sketch20)
sketch20.AttachmentSupport = (doc.XY_Plane, [""])
sketch20.MapMode = "FlatFace"
sketch20.AttachmentOffset = App.Placement(V(0, 0, -7.4), App.Rotation())
sketch20.addGeometry([
    Part.ArcOfCircle(Part.Circle(V(5, 24.4, 0), V(0, 0, 1), 2.9), math.radians(0), math.radians(90)),
    Part.LineSegment(V(5, 27.3, 0), V(5, 24.4, 0)),
    Part.LineSegment(V(5, 24.4, 0), V(8, 24.4, 0)),
], False)
sketch20.addConstraint([
    Sketcher.Constraint("Coincident", 0, 2, 1, 1),
    Sketcher.Constraint("Coincident", 1, 2, 2, 1),
    Sketcher.Constraint("Coincident", 2, 2, 0, 1),
    Sketcher.Constraint("Vertical", 1),
    Sketcher.Constraint("Horizontal", 2),
    Sketcher.Constraint("Coincident", 1, 2, 0, 3),
    Sketcher.Constraint("Radius", 0, 2.9),
    Sketcher.Constraint("DistanceY", -1, 1, 0, 3, 24.4),
    Sketcher.Constraint("DistanceX", -1, 1, 0, 3, 5.05),
])
pocket15 = doc.addObject("PartDesign::Pocket", "Pocket014")
body.addObject(pocket15)
pocket15.Profile = sketch20
pocket15.Length = 3.4

# Sketch on XY plane
sketch21 = doc.addObject("Sketcher::SketchObject", "Sketch020")
body.addObject(sketch21)
sketch21.AttachmentSupport = (doc.XY_Plane, [""])
sketch21.MapMode = "FlatFace"
sketch21.AttachmentOffset = App.Placement(V(0, 0, -7.4), App.Rotation())
sketch21.addGeometry([
    Part.LineSegment(V(5, 24.4, 0), V(5, 27.3, 0)),
    Part.ArcOfCircle(Part.Circle(V(5, 24.4, 0), V(0, 0, 1), 2.9), math.radians(90), math.radians(360)),
    Part.LineSegment(V(8, 24.4, 0), V(5, 24.4, 0)),
], False)
sketch21.addConstraint([
    Sketcher.Constraint("Coincident", 0, 2, 1, 1),
    Sketcher.Constraint("Coincident", 1, 2, 2, 1),
    Sketcher.Constraint("Coincident", 2, 2, 0, 1),
    Sketcher.Constraint("Vertical", 0),
    Sketcher.Constraint("Horizontal", 2),
    Sketcher.Constraint("Coincident", 2, 2, 1, 3),
    Sketcher.Constraint("Radius", 1, 2.9),
    Sketcher.Constraint("DistanceY", -1, 1, 1, 3, 24.4),
    Sketcher.Constraint("DistanceX", -1, 1, 1, 3, 5.05),
])
pocket16 = doc.addObject("PartDesign::Pocket", "Pocket015")
body.addObject(pocket16)
pocket16.Profile = sketch21
pocket16.Length = 3.4

doc.recompute()
